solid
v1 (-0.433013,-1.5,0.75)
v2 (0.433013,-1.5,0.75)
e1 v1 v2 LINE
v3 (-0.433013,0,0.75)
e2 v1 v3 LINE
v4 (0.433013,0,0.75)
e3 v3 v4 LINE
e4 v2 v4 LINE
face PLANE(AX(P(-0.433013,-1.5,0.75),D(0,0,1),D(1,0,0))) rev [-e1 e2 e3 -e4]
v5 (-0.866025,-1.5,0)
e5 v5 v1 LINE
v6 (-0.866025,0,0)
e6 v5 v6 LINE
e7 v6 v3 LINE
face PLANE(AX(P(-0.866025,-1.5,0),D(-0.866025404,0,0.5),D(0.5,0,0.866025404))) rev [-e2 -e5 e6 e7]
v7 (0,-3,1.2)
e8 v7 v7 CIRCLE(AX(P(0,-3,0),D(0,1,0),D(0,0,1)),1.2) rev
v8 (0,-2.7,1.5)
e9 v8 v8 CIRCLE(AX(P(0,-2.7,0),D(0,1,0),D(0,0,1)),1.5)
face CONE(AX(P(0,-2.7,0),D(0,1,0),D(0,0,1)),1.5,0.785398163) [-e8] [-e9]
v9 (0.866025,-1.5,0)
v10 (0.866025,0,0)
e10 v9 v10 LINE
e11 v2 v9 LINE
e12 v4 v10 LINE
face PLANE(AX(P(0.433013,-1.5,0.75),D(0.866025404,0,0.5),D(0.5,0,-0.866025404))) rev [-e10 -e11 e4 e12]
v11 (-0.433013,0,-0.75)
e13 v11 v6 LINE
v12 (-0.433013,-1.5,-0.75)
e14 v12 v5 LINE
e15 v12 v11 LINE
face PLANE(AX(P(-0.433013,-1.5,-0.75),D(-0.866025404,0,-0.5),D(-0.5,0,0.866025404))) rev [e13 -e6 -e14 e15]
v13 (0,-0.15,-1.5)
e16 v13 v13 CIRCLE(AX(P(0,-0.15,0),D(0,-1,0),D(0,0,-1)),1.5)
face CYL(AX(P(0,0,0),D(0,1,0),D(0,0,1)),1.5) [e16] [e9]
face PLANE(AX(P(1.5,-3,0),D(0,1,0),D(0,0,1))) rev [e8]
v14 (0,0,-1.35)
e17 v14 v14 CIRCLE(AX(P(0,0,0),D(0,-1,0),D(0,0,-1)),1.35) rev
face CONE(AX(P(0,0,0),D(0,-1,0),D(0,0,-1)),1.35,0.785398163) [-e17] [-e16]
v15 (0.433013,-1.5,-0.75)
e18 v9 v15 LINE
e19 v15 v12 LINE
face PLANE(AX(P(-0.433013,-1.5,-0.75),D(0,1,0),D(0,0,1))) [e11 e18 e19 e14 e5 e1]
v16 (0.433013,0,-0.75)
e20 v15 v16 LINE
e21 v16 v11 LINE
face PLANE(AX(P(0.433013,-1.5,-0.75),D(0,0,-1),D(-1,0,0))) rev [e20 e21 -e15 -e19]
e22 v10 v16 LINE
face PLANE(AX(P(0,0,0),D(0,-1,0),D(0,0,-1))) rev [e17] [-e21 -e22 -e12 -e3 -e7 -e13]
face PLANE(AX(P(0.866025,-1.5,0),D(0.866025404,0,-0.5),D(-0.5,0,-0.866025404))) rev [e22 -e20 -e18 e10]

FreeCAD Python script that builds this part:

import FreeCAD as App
import Part
import Sketcher
from FreeCAD import Vector
Q = App.Units.Quantity


def edges_at(feature, points):
    """Names of the edges that pass closest to the given points."""
    edges = feature.Shape.Edges
    near = lambda p: min(range(len(edges)), key=lambda i: edges[i].distToShape(Part.Vertex(*p))[0])
    return sorted({f"Edge{near(p) + 1}" for p in points})

doc = App.newDocument("Part")
params = doc.addObject("Spreadsheet::Sheet", "Params")
for row, (alias, value) in enumerate([
    ("sketch1_height", "3 mm"),
    ("sketch1_width", "1.5 mm"),
    ("revolution_angle", "360 deg"),
    ("pocket1_length", "1.5 mm"),
    ("chamfer_size", "0.3 mm"),
    ("chamfer2_size", "0.15 mm"),
], start=1):
    params.set(f"A{row}", alias)
    params.set(f"B{row}", "=" + value)
    params.setAlias(f"B{row}", alias)

body = doc.addObject("PartDesign::Body", "Body")

# Sketch on XY plane
sketch1 = body.newObject("Sketcher::SketchObject", "Sketch")
sketch1.AttachmentSupport = (doc.getObject("XY_Plane"), [""])
sketch1.MapMode = "FlatFace"
sketch1.addGeometry(Part.LineSegment(Vector(0, 0, 0), Vector(0, -3, 0)), False)
sketch1.addGeometry(Part.LineSegment(Vector(0, -3, 0), Vector(1.5, -3, 0)), False)
sketch1.addGeometry(Part.LineSegment(Vector(1.5, -3, 0), Vector(1.5, 0, 0)), False)
sketch1.addGeometry(Part.LineSegment(Vector(1.5, 0, 0), Vector(0, 0, 0)), False)
sketch1.addConstraint(Sketcher.Constraint("Coincident", 0, 2, 1, 1))
sketch1.addConstraint(Sketcher.Constraint("Coincident", 1, 2, 2, 1))
sketch1.addConstraint(Sketcher.Constraint("Coincident", 2, 2, 3, 1))
sketch1.addConstraint(Sketcher.Constraint("Coincident", 3, 2, 0, 1))
sketch1.addConstraint(Sketcher.Constraint("Vertical", 0))
sketch1.addConstraint(Sketcher.Constraint("Horizontal", 1))
sketch1.addConstraint(Sketcher.Constraint("Vertical", 2))
sketch1.addConstraint(Sketcher.Constraint("Horizontal", 3))
sketch1.addConstraint(Sketcher.Constraint("Coincident", 3, 2, -1, 1))
sketch1.addConstraint(Sketcher.Constraint("DistanceY", 0, 2, 0, 1, Q("3 mm")))
sketch1.addConstraint(Sketcher.Constraint("DistanceX", 1, 1, 1, 2, Q("1.5 mm")))
sketch1.setExpression("Constraints[9]", "Params.sketch1_height")
sketch1.setExpression("Constraints[10]", "Params.sketch1_width")
revolution = body.newObject("PartDesign::Revolution", "Revolution")
revolution.Profile = sketch1
revolution.ReferenceAxis = (sketch1, ["V_Axis"])
revolution.setExpression("Angle", "Params.revolution_angle")

# Sketch on XZ plane
sketch2 = body.newObject("Sketcher::SketchObject", "Sketch001")
sketch2.AttachmentSupport = (doc.getObject("XZ_Plane"), [""])
sketch2.MapMode = "FlatFace"
sketch2.addGeometry(Part.LineSegment(Vector(-0.4, -0.8, 0), Vector(-0.9, 0, 0)), False)
sketch2.addGeometry(Part.LineSegment(Vector(-0.9, 0, 0), Vector(-0.4, 0.8, 0)), False)
sketch2.addGeometry(Part.LineSegment(Vector(-0.4, 0.8, 0), Vector(0.4, 0.8, 0)), False)
sketch2.addGeometry(Part.LineSegment(Vector(0.4, 0.8, 0), Vector(0.9, 0, 0)), False)
sketch2.addGeometry(Part.LineSegment(Vector(0.9, 0, 0), Vector(0.4, -0.8, 0)), False)
sketch2.addGeometry(Part.LineSegment(Vector(0.4, -0.8, 0), Vector(-0.4, -0.8, 0)), False)
sketch2.addConstraint(Sketcher.Constraint("Coincident", 0, 2, 1, 1))
sketch2.addConstraint(Sketcher.Constraint("Coincident", 1, 2, 2, 1))
sketch2.addConstraint(Sketcher.Constraint("Coincident", 2, 2, 3, 1))
sketch2.addConstraint(Sketcher.Constraint("Coincident", 3, 2, 4, 1))
sketch2.addConstraint(Sketcher.Constraint("Coincident", 4, 2, 5, 1))
sketch2.addConstraint(Sketcher.Constraint("Coincident", 5, 2, 0, 1))
sketch2.addConstraint(Sketcher.Constraint("Horizontal", 2))
sketch2.addConstraint(Sketcher.Constraint("Horizontal", 5))
sketch2.addConstraint(Sketcher.Constraint("Symmetric", 0, 2, 3, 2, -1, 1))
sketch2.addConstraint(Sketcher.Constraint("Symmetric", 1, 2, 4, 2, -1, 1))
sketch2.addConstraint(Sketcher.Constraint("PointOnObject", 0, 2, -1))
sketch2.addConstraint(Sketcher.Constraint("Parallel", 0, 3))
sketch2.addConstraint(Sketcher.Constraint("Vertical", 2, 2, 4, 2))
sketch2.addConstraint(Sketcher.Constraint("Angle", 0, Q("120 deg")))
sketch2.addConstraint(Sketcher.Constraint("DistanceY", 4, 2, 2, 2, Q("1.5 mm")))
sketch2.addConstraint(Sketcher.Constraint("DistanceX", 2, 1, 2, 2, Q("0.866025 mm")))
pocket1 = body.newObject("PartDesign::Pocket", "Pocket")
pocket1.Profile = sketch2
pocket1.setExpression("Length", "Params.pocket1_length")
pocket1.Reversed = True
doc.recompute()

chamfer = body.newObject("PartDesign::Chamfer", "Chamfer")
chamfer.Base = (pocket1, edges_at(pocket1, [(-1.5, -3, 0)]))
chamfer.setExpression("Size", "Params.chamfer_size")
doc.recompute()

chamfer2 = body.newObject("PartDesign::Chamfer", "Chamfer001")
chamfer2.Base = (chamfer, edges_at(chamfer, [(-1.5, 0, 0)]))
chamfer2.setExpression("Size", "Params.chamfer2_size")

doc.recompute()
